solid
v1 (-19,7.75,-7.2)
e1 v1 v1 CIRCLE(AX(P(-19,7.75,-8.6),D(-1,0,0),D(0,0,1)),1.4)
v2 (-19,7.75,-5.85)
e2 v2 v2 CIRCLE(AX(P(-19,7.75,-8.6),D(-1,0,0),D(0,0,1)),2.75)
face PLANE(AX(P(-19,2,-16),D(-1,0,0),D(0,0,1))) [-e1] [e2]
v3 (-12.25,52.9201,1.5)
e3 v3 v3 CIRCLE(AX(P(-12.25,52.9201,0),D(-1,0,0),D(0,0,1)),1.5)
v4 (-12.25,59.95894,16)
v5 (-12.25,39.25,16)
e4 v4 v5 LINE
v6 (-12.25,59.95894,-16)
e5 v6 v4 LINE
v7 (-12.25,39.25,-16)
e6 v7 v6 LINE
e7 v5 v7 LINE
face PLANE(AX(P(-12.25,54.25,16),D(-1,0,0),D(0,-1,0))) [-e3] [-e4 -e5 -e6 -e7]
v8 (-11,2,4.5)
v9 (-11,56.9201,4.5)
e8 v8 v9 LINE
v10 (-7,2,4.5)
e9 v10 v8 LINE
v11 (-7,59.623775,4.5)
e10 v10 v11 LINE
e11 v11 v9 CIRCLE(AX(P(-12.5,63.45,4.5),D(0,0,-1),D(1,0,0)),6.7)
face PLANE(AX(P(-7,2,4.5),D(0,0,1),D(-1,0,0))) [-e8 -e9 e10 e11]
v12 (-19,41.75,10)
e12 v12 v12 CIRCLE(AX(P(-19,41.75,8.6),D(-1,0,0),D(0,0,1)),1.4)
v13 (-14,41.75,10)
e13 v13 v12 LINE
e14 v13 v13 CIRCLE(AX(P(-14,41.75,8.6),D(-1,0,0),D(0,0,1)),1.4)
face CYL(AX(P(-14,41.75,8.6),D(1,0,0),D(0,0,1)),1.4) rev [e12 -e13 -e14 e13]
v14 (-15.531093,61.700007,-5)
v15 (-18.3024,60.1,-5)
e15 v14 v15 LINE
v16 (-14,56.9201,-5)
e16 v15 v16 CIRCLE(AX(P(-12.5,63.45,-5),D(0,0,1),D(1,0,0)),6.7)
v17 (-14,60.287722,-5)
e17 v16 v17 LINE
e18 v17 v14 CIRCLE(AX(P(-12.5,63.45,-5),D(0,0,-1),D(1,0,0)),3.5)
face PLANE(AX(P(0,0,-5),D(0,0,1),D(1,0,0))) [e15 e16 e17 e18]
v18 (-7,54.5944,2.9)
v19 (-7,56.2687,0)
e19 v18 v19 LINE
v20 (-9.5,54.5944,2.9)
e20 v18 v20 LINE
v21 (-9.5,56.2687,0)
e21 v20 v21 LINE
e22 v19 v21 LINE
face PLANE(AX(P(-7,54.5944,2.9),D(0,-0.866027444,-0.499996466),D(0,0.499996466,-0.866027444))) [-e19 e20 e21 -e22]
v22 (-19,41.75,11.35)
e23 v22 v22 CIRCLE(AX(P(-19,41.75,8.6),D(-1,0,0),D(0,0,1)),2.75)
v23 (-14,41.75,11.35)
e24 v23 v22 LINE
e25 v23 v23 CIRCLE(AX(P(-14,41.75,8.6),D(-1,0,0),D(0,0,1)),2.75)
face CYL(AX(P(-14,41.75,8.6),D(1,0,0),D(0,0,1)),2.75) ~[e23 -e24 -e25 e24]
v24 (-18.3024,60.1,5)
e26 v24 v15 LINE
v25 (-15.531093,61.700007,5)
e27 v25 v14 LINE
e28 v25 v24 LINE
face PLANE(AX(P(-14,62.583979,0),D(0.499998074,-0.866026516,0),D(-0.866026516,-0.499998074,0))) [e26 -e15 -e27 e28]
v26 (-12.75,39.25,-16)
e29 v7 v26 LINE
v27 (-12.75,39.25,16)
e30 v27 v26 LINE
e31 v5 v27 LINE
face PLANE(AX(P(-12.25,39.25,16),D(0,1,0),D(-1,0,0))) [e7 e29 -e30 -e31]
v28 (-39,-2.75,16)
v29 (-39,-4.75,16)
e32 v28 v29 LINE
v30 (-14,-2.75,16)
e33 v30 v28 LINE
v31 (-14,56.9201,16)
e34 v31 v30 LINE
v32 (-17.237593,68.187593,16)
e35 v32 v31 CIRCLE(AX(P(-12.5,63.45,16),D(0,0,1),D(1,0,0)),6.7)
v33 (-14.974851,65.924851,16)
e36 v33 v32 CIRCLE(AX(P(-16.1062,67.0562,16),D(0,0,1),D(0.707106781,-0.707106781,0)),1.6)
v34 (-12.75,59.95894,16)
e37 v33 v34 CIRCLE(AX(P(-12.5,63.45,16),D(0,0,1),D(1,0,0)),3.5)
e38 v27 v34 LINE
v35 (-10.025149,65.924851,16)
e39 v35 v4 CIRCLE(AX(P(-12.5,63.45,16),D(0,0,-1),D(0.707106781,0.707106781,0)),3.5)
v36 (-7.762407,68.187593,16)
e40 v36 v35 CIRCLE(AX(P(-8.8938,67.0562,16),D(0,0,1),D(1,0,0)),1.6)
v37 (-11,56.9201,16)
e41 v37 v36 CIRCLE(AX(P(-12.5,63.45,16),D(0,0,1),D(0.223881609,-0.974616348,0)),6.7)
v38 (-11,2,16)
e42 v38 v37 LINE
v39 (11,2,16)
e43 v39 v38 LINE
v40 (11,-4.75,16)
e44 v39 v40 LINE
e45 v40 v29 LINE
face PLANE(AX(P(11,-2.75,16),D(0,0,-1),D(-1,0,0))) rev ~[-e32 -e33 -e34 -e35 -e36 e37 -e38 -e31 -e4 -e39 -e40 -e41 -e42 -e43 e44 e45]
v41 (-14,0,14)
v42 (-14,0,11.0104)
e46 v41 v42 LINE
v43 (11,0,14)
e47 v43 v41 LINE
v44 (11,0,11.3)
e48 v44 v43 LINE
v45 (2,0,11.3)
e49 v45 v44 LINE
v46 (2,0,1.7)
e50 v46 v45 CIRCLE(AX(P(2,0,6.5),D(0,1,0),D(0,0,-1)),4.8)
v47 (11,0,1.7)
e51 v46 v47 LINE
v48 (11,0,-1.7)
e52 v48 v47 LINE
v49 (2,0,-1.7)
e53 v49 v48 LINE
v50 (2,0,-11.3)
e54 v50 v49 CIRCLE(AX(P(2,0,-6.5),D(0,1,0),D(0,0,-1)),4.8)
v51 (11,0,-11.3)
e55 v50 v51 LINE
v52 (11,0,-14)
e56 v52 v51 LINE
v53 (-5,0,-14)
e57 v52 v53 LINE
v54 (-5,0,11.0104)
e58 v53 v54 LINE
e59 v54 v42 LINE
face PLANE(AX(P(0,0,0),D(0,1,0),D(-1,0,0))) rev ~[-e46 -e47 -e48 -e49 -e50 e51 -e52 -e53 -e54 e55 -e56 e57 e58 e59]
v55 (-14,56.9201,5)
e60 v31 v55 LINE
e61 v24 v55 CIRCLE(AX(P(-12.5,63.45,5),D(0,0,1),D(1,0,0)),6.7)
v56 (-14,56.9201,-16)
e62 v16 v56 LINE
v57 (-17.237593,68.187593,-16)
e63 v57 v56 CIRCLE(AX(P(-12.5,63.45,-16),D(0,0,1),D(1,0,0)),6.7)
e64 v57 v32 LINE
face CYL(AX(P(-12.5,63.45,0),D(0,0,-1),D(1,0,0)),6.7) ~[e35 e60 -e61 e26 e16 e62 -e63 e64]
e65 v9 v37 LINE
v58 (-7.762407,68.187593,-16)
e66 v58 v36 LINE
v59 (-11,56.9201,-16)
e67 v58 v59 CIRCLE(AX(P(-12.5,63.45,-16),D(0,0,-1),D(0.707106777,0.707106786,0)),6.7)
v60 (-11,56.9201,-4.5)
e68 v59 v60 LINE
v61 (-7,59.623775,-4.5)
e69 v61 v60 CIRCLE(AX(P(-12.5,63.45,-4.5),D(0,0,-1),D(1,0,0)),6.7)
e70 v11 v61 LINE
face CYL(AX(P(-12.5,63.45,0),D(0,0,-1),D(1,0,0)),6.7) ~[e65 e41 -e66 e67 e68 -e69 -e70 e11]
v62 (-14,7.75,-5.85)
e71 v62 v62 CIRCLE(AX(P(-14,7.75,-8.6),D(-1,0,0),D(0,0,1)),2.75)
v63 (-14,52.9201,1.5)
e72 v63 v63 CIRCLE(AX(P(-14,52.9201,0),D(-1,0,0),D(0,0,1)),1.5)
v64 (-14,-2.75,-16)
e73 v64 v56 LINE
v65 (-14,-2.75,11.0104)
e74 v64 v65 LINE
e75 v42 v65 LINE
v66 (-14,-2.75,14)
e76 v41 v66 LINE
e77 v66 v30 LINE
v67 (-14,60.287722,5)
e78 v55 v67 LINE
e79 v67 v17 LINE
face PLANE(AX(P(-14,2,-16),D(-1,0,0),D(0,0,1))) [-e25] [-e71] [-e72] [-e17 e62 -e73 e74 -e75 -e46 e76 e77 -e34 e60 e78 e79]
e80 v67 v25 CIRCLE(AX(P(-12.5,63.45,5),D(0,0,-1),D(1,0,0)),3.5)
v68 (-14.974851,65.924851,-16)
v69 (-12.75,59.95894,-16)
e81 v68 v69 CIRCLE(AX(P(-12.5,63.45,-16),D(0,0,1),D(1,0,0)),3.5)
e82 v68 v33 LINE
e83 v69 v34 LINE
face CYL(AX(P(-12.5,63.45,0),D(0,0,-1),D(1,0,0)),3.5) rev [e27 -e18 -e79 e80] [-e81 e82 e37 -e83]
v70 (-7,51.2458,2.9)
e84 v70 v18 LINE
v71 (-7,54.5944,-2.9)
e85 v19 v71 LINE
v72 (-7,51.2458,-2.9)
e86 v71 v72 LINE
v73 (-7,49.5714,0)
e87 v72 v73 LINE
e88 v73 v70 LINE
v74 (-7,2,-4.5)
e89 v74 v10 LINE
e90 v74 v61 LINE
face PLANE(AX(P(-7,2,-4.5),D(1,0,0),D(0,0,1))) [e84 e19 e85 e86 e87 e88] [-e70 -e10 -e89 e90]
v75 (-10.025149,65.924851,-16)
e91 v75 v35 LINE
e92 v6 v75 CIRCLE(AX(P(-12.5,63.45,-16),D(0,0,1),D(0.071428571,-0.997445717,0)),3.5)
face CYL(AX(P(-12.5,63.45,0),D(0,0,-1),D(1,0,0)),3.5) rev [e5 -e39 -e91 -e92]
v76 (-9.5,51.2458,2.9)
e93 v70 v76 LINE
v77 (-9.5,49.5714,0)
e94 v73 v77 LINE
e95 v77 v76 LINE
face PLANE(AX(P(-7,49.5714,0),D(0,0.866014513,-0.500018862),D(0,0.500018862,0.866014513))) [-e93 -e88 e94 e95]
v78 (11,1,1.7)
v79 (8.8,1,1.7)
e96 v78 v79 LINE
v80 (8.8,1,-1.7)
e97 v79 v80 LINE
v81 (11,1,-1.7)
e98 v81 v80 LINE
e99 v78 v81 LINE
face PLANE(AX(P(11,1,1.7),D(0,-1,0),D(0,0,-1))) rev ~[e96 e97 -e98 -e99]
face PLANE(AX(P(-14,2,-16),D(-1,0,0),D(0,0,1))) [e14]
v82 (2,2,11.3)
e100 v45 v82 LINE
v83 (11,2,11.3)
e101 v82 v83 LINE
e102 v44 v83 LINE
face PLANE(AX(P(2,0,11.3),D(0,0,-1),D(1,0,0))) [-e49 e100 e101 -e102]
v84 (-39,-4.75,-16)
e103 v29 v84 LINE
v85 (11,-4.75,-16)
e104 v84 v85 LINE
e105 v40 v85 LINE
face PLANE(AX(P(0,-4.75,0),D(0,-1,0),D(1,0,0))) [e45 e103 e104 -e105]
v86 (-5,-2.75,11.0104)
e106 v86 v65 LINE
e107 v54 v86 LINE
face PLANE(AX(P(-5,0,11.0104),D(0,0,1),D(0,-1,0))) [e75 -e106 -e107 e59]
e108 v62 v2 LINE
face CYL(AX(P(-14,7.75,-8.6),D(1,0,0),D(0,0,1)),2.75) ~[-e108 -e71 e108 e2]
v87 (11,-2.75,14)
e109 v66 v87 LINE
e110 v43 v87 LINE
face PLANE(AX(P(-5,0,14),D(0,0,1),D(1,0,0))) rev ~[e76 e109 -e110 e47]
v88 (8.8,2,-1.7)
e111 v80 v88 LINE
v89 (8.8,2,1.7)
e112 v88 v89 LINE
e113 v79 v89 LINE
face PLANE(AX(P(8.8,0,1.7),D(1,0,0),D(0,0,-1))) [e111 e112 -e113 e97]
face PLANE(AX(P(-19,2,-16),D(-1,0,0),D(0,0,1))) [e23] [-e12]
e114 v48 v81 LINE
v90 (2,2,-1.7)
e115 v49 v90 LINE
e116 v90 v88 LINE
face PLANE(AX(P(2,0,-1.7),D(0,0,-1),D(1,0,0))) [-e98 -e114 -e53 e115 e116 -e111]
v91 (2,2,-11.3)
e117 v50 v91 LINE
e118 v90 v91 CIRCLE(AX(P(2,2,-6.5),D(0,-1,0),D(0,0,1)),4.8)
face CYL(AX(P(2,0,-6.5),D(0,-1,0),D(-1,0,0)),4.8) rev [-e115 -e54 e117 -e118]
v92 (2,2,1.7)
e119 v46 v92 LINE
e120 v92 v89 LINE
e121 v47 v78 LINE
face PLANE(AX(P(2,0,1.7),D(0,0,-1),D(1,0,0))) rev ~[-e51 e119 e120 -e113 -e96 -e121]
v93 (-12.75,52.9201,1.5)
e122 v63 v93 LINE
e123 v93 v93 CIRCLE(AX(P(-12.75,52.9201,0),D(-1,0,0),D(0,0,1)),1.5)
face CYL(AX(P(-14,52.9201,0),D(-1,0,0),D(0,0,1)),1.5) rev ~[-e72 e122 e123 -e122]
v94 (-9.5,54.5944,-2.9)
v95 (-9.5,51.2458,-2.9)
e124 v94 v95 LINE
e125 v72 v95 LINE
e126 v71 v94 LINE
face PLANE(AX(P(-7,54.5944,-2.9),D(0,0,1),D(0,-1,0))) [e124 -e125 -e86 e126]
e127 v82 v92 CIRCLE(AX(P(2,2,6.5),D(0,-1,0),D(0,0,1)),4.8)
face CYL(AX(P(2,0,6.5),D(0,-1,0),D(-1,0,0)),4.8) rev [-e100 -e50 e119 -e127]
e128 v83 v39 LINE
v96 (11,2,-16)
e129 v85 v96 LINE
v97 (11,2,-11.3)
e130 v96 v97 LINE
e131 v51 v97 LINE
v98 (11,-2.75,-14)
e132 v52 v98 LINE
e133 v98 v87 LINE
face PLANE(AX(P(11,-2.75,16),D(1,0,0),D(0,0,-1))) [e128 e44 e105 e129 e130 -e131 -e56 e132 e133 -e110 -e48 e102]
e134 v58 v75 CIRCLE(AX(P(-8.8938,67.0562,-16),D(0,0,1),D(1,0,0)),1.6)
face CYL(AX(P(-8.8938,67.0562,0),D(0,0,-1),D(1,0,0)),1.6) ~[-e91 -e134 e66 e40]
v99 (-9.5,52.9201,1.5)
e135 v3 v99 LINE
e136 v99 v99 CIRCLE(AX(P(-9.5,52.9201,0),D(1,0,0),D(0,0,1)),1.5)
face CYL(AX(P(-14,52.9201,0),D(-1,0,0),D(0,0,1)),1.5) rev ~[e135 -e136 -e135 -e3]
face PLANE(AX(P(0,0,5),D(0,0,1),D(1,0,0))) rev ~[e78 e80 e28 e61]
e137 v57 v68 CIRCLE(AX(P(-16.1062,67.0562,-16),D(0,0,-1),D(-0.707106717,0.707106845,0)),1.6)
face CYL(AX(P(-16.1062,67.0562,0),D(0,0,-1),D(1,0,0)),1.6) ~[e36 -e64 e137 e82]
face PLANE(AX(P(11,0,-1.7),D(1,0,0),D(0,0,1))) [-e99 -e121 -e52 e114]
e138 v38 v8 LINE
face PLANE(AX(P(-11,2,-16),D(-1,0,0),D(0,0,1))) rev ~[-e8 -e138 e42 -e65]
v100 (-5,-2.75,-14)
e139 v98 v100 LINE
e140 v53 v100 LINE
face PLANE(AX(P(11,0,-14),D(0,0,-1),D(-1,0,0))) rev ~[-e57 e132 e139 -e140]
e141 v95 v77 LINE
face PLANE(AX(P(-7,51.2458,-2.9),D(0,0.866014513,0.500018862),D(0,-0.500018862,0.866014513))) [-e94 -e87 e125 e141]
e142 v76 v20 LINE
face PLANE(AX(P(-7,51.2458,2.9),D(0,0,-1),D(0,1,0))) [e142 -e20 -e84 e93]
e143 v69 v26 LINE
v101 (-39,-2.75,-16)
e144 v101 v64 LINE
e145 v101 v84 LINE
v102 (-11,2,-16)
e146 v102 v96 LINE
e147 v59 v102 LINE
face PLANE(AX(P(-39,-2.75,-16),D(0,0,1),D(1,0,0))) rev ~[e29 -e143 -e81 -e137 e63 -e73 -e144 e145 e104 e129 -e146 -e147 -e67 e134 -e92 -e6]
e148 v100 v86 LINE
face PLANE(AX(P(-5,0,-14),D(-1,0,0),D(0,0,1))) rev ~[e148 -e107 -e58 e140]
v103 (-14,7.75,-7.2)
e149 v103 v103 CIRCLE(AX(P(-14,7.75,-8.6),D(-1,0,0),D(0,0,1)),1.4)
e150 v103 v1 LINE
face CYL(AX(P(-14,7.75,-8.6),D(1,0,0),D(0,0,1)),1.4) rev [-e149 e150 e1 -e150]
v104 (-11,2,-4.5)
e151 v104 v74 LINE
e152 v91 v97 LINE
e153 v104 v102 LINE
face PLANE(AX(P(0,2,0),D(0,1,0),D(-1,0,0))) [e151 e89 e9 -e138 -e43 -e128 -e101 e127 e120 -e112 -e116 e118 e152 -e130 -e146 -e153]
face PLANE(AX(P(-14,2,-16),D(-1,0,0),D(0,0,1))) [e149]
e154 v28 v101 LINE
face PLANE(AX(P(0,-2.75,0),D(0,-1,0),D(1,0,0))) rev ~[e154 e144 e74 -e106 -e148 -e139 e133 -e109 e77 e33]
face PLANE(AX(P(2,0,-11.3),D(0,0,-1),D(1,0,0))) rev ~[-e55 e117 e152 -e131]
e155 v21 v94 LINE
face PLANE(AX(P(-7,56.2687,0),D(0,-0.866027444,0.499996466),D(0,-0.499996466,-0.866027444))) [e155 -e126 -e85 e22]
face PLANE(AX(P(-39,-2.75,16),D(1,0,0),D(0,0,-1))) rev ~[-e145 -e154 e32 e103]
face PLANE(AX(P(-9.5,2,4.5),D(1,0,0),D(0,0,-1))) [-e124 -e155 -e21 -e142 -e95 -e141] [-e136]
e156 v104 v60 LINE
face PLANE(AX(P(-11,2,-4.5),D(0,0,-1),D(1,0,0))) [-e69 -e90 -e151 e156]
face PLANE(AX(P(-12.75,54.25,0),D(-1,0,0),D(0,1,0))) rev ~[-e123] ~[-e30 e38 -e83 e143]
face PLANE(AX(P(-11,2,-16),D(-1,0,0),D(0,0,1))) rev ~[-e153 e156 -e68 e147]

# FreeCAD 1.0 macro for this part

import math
import FreeCAD as App
import Part
import Sketcher
Q = App.Units.Quantity

doc = App.newDocument("Part")
body = doc.addObject("PartDesign::Body", "Body")

sketch1 = body.newObject("Sketcher::SketchObject", "Sketch")
sketch1.AttachmentSupport = (doc.getObject("XZ_Plane"), [""])
sketch1.MapMode = "FlatFace"
sketch1.addGeometry([
    Part.LineSegment(App.Vector(11, -16, 0), App.Vector(-11, -16, 0)),
    Part.LineSegment(App.Vector(-11, -16, 0), App.Vector(-11, 16, 0)),
    Part.LineSegment(App.Vector(-11, 16, 0), App.Vector(11, 16, 0)),
    Part.LineSegment(App.Vector(11, 16, 0), App.Vector(11, 11.3, 0)),
    Part.LineSegment(App.Vector(11, 11.3, 0), App.Vector(2, 11.3, 0)),
    Part.ArcOfCircle(Part.Circle(App.Vector(2, 6.5, 0), App.Vector(0, 0, 1), 4.8), math.radians(90), math.radians(270)),
    Part.LineSegment(App.Vector(2, 1.7, 0), App.Vector(11, 1.7, 0)),
    Part.LineSegment(App.Vector(11, 1.7, 0), App.Vector(11, -1.7, 0)),
    Part.LineSegment(App.Vector(11, -1.7, 0), App.Vector(2, -1.7, 0)),
    Part.ArcOfCircle(Part.Circle(App.Vector(2, -6.5, 0), App.Vector(0, 0, 1), 4.8), math.radians(90), math.radians(270)),
    Part.LineSegment(App.Vector(2, -11.3, 0), App.Vector(11, -11.3, 0)),
    Part.LineSegment(App.Vector(11, -11.3, 0), App.Vector(11, -16, 0)),
], False)
sketch1.addConstraint([
    Sketcher.Constraint("Coincident", 0, 2, 1, 1),
    Sketcher.Constraint("Coincident", 1, 2, 2, 1),
    Sketcher.Constraint("Coincident", 2, 2, 3, 1),
    Sketcher.Constraint("Coincident", 3, 2, 4, 1),
    Sketcher.Constraint("Tangent", 4, 2, 5, 1),
    Sketcher.Constraint("Tangent", 5, 2, 6, 1),
    Sketcher.Constraint("Coincident", 6, 2, 7, 1),
    Sketcher.Constraint("Coincident", 7, 2, 8, 1),
    Sketcher.Constraint("Tangent", 8, 2, 9, 1),
    Sketcher.Constraint("Tangent", 9, 2, 10, 1),
    Sketcher.Constraint("Coincident", 10, 2, 11, 1),
    Sketcher.Constraint("Coincident", 11, 2, 0, 1),
    Sketcher.Constraint("Horizontal", 0),
    Sketcher.Constraint("Vertical", 1),
    Sketcher.Constraint("Horizontal", 2),
    Sketcher.Constraint("Vertical", 3),
    Sketcher.Constraint("Horizontal", 4),
    Sketcher.Constraint("Horizontal", 6),
    Sketcher.Constraint("Vertical", 7),
    Sketcher.Constraint("Horizontal", 8),
    Sketcher.Constraint("Horizontal", 10),
    Sketcher.Constraint("Vertical", 11),
    Sketcher.Constraint("Equal", 5, 9),
    Sketcher.Constraint("Symmetric", 0, 2, 2, 2, -1, 1),
    Sketcher.Constraint("Symmetric", 5, 3, 9, 3, -1),
    Sketcher.Constraint("Vertical", 3, 2, 6, 2),
    Sketcher.Constraint("Vertical", 7, 2, 10, 2),
    Sketcher.Constraint("Radius", 5, Q("4.8 mm")),
    Sketcher.Constraint("DistanceX", 0, 2, 0, 1, Q("22 mm")),
    Sketcher.Constraint("DistanceY", 1, 1, 1, 2, Q("32 mm")),
    Sketcher.Constraint("DistanceY", 9, 3, 5, 3, Q("13 mm")),
    Sketcher.Constraint("DistanceX", 0, 2, 9, 3, Q("13 mm")),
])
pad1 = body.newObject("PartDesign::Pad", "Pad")
pad1.Profile = sketch1
pad1.Length = 2
pad1.Reversed = True

sketch2 = body.newObject("Sketcher::SketchObject", "Sketch001")
sketch2.AttachmentSupport = (doc.getObject("XZ_Plane"), [""])
sketch2.MapMode = "FlatFace"
sketch2.addGeometry([
    Part.LineSegment(App.Vector(11, 16, 0), App.Vector(-11, 16, 0)),
    Part.LineSegment(App.Vector(-11, 16, 0), App.Vector(-11, -16, 0)),
    Part.LineSegment(App.Vector(-11, -16, 0), App.Vector(11, -16, 0)),
    Part.LineSegment(App.Vector(11, -16, 0), App.Vector(11, -14, 0)),
    Part.LineSegment(App.Vector(11, -14, 0), App.Vector(-5, -14, 0)),
    Part.LineSegment(App.Vector(-5, -14, 0), App.Vector(-5, 14, 0)),
    Part.LineSegment(App.Vector(-5, 14, 0), App.Vector(11, 14, 0)),
    Part.LineSegment(App.Vector(11, 14, 0), App.Vector(11, 16, 0)),
], False)
sketch2.addConstraint([
    Sketcher.Constraint("Coincident", 0, 2, 1, 1),
    Sketcher.Constraint("Coincident", 1, 2, 2, 1),
    Sketcher.Constraint("Coincident", 2, 2, 3, 1),
    Sketcher.Constraint("Coincident", 3, 2, 4, 1),
    Sketcher.Constraint("Coincident", 4, 2, 5, 1),
    Sketcher.Constraint("Coincident", 5, 2, 6, 1),
    Sketcher.Constraint("Coincident", 6, 2, 7, 1),
    Sketcher.Constraint("Coincident", 7, 2, 0, 1),
    Sketcher.Constraint("Horizontal", 0),
    Sketcher.Constraint("Vertical", 1),
    Sketcher.Constraint("Horizontal", 2),
    Sketcher.Constraint("Vertical", 3),
    Sketcher.Constraint("Horizontal", 4),
    Sketcher.Constraint("Vertical", 5),
    Sketcher.Constraint("Horizontal", 6),
    Sketcher.Constraint("Vertical", 7),
    Sketcher.Constraint("Symmetric", 0, 2, 2, 2, -1, 1),
    Sketcher.Constraint("Symmetric", 3, 2, 6, 2, -1),
    Sketcher.Constraint("DistanceX", 4, 2, 4, 1, Q("16 mm")),
    Sketcher.Constraint("DistanceY", 3, 1, 3, 2, Q("2 mm")),
    Sketcher.Constraint("DistanceY", 5, 1, 5, 2, Q("28 mm")),
    Sketcher.Constraint("DistanceX", 0, 2, 0, 1, Q("22 mm")),
])
pad2 = body.newObject("PartDesign::Pad", "Pad001")
pad2.Profile = sketch2
pad2.Length = 2.75

sketch3 = body.newObject("Sketcher::SketchObject", "Sketch002")
sketch3.AttachmentSupport = (doc.getObject("YZ_Plane"), [""])
sketch3.MapMode = "FlatFace"
sketch3.AttachmentOffset = App.Placement(App.Vector(0, 0, -11), App.Rotation())
sketch3.addGeometry([
    Part.LineSegment(App.Vector(52, -16, 0), App.Vector(-3, -16, 0)),
    Part.LineSegment(App.Vector(-3, -16, 0), App.Vector(-3, 16, 0)),
    Part.LineSegment(App.Vector(-3, 16, 0), App.Vector(52, 16, 0)),
    Part.LineSegment(App.Vector(52, 16, 0), App.Vector(52, -16, 0)),
], False)
sketch3.addConstraint([
    Sketcher.Constraint("Coincident", 0, 2, 1, 1),
    Sketcher.Constraint("Coincident", 1, 2, 2, 1),
    Sketcher.Constraint("Coincident", 2, 2, 3, 1),
    Sketcher.Constraint("Coincident", 3, 2, 0, 1),
    Sketcher.Constraint("Horizontal", 0),
    Sketcher.Constraint("Vertical", 1),
    Sketcher.Constraint("Horizontal", 2),
    Sketcher.Constraint("Vertical", 3),
    Sketcher.Constraint("DistanceX", 0, 2, 0, 1, Q("54.5 mm")),
    Sketcher.Constraint("DistanceY", 1, 1, 1, 2, Q("32 mm")),
    Sketcher.Constraint("DistanceY", 0, 2, -1, 1, Q("16 mm")),
    Sketcher.Constraint("DistanceX", 0, 2, -1, 1, Q("2.75 mm")),
])
pad3 = body.newObject("PartDesign::Pad", "Pad002")
pad3.Profile = sketch3
pad3.Length = 3
pad3.Reversed = True

sketch4 = body.newObject("Sketcher::SketchObject", "Sketch003")
sketch4.AttachmentSupport = (doc.getObject("XZ_Plane"), [""])
sketch4.MapMode = "FlatFace"
sketch4.AttachmentOffset = App.Placement(App.Vector(0, 0, 2.75), App.Rotation())
sketch4.addGeometry([
    Part.LineSegment(App.Vector(11, -16, 0), App.Vector(11, 16, 0)),
    Part.LineSegment(App.Vector(11, 16, 0), App.Vector(-39, 16, 0)),
    Part.LineSegment(App.Vector(-39, 16, 0), App.Vector(-39, -16, 0)),
    Part.LineSegment(App.Vector(-39, -16, 0), App.Vector(11, -16, 0)),
], False)
sketch4.addConstraint([
    Sketcher.Constraint("Coincident", 0, 2, 1, 1),
    Sketcher.Constraint("Coincident", 1, 2, 2, 1),
    Sketcher.Constraint("Coincident", 2, 2, 3, 1),
    Sketcher.Constraint("Coincident", 3, 2, 0, 1),
    Sketcher.Constraint("Vertical", 0),
    Sketcher.Constraint("Horizontal", 1),
    Sketcher.Constraint("Vertical", 2),
    Sketcher.Constraint("Horizontal", 3),
    Sketcher.Constraint("DistanceX", 1, 2, 1, 1, Q("50 mm")),
    Sketcher.Constraint("DistanceY", 0, 1, 0, 2, Q("32 mm")),
    Sketcher.Constraint("DistanceX", -1, 1, 0, 2, Q("11 mm")),
    Sketcher.Constraint("DistanceY", -1, 1, 0, 2, Q("16 mm")),
])
pad4 = body.newObject("PartDesign::Pad", "Pad003")
pad4.Profile = sketch4
pad4.Length = 2

sketch5 = body.newObject("Sketcher::SketchObject", "Sketch004")
sketch5.AttachmentSupport = (doc.getObject("YZ_Plane"), [""])
sketch5.MapMode = "FlatFace"
sketch5.AttachmentOffset = App.Placement(App.Vector(0, 0, -5), App.Rotation())
sketch5.addGeometry([
    Part.LineSegment(App.Vector(0, 11, 0), App.Vector(0, 14, 0)),
    Part.LineSegment(App.Vector(0, 14, 0), App.Vector(-2.8, 14, 0)),
    Part.LineSegment(App.Vector(-2.8, 14, 0), App.Vector(-2.8, 11, 0)),
    Part.LineSegment(App.Vector(-2.8, 11, 0), App.Vector(0, 11, 0)),
], False)
sketch5.addConstraint([
    Sketcher.Constraint("Coincident", 0, 2, 1, 1),
    Sketcher.Constraint("Coincident", 1, 2, 2, 1),
    Sketcher.Constraint("Coincident", 2, 2, 3, 1),
    Sketcher.Constraint("Coincident", 3, 2, 0, 1),
    Sketcher.Constraint("Vertical", 0),
    Sketcher.Constraint("Horizontal", 1),
    Sketcher.Constraint("Vertical", 2),
    Sketcher.Constraint("Horizontal", 3),
    Sketcher.Constraint("PointOnObject", 0, 2, -2),
    Sketcher.Constraint("DistanceY", -1, 1, 0, 2, Q("14 mm")),
    Sketcher.Constraint("DistanceX", 1, 2, 1, 1, Q("2.75 mm")),
    Sketcher.Constraint("DistanceY", 0, 1, 0, 2, Q("2.9896 mm")),
])
pocket1 = body.newObject("PartDesign::Pocket", "Pocket")
pocket1.Profile = sketch5
pocket1.Length = 9

sketch6 = body.newObject("Sketcher::SketchObject", "Sketch005")
sketch6.AttachmentSupport = (doc.getObject("YZ_Plane"), [""])
sketch6.MapMode = "FlatFace"
sketch6.AttachmentOffset = App.Placement(App.Vector(0, 0, 11), App.Rotation())
sketch6.addGeometry([
    Part.LineSegment(App.Vector(2, 1.7, 0), App.Vector(1, 1.7, 0)),
    Part.LineSegment(App.Vector(1, 1.7, 0), App.Vector(1, -1.7, 0)),
    Part.LineSegment(App.Vector(1, -1.7, 0), App.Vector(2, -1.7, 0)),
    Part.LineSegment(App.Vector(2, -1.7, 0), App.Vector(2, 1.7, 0)),
], False)
sketch6.addConstraint([
    Sketcher.Constraint("Coincident", 0, 2, 1, 1),
    Sketcher.Constraint("Coincident", 1, 2, 2, 1),
    Sketcher.Constraint("Coincident", 2, 2, 3, 1),
    Sketcher.Constraint("Coincident", 3, 2, 0, 1),
    Sketcher.Constraint("Horizontal", 0),
    Sketcher.Constraint("Vertical", 1),
    Sketcher.Constraint("Horizontal", 2),
    Sketcher.Constraint("Vertical", 3),
    Sketcher.Constraint("DistanceX", 0, 2, 0, 1, Q("1 mm")),
    Sketcher.Constraint("DistanceY", 1, 2, 1, 1, Q("3.4 mm")),
    Sketcher.Constraint("DistanceX", -1, 1, 0, 2, Q("1 mm")),
    Sketcher.Constraint("DistanceY", -1, 1, 0, 2, Q("1.7 mm")),
])
pocket2 = body.newObject("PartDesign::Pocket", "Pocket001")
pocket2.Profile = sketch6
pocket2.Length = 2.2

sketch7 = body.newObject("Sketcher::SketchObject", "Sketch006")
sketch7.AttachmentSupport = (doc.getObject("YZ_Plane"), [""])
sketch7.MapMode = "FlatFace"
sketch7.AttachmentOffset = App.Placement(App.Vector(0, 0, -14), App.Rotation())
sketch7.addGeometry([
    Part.Circle(App.Vector(41.8, 8.6, 0), App.Vector(0, 0, 1), 2.8),
    Part.Circle(App.Vector(41.8, 8.6, 0), App.Vector(0, 0, 1), 1.4),
    Part.Circle(App.Vector(7.8, -8.6, 0), App.Vector(0, 0, 1), 2.8),
    Part.Circle(App.Vector(7.8, -8.6, 0), App.Vector(0, 0, 1), 1.4),
], False)
sketch7.addConstraint([
    Sketcher.Constraint("Coincident", 1, 3, 0, 3),
    Sketcher.Constraint("Coincident", 3, 3, 2, 3),
    Sketcher.Constraint("Equal", 0, 2),
    Sketcher.Constraint("Equal", 1, 3),
    Sketcher.Constraint("Diameter", 0, Q("5.5 mm")),
    Sketcher.Constraint("Diameter", 1, Q("2.8 mm")),
    Sketcher.Constraint("DistanceX", 2, 3, 0, 3, Q("34 mm")),
    Sketcher.Constraint("DistanceY", -1, 1, 0, 3, Q("8.6 mm")),
    Sketcher.Constraint("DistanceY", 2, 3, -1, 1, Q("8.6 mm")),
    Sketcher.Constraint("DistanceX", -1, 1, 0, 3, Q("41.75 mm")),
])
pad5 = body.newObject("PartDesign::Pad", "Pad004")
pad5.Profile = sketch7
pad5.Length = 5
pad5.Reversed = True

sketch8 = body.newObject("Sketcher::SketchObject", "Sketch007")
sketch8.AttachmentSupport = (doc.getObject("XY_Plane"), [""])
sketch8.MapMode = "FlatFace"
sketch8.addGeometry([
    Part.LineSegment(App.Vector(-11, 51.8, 0), App.Vector(-11, 56.9, 0)),
    Part.ArcOfCircle(Part.Circle(App.Vector(-12.5, 63.5, 0), App.Vector(0, 0, 1), 6.7), math.radians(-77), math.radians(45)),
    Part.ArcOfCircle(Part.Circle(App.Vector(-8.9, 67.1, 0), App.Vector(0, 0, 1), 1.6), math.radians(45), math.radians(225)),
    Part.ArcOfCircle(Part.Circle(App.Vector(-12.5, 63.5, 0), App.Vector(0, 0, 1), 3.5), math.radians(-86), math.radians(45)),
    Part.LineSegment(App.Vector(-12.2, 60, 0), App.Vector(-12.2, 54.2, 0)),
    Part.LineSegment(App.Vector(-12.2, 54.2, 0), App.Vector(-12.8, 54.2, 0)),
    Part.LineSegment(App.Vector(-12.8, 54.2, 0), App.Vector(-12.8, 60, 0)),
    Part.ArcOfCircle(Part.Circle(App.Vector(-12.5, 63.5, 0), App.Vector(0, 0, 1), 3.5), math.radians(135), math.radians(266)),
    Part.ArcOfCircle(Part.Circle(App.Vector(-16.1, 67.1, 0), App.Vector(0, 0, 1), 1.6), math.radians(-45), math.radians(135)),
    Part.ArcOfCircle(Part.Circle(App.Vector(-12.5, 63.5, 0), App.Vector(0, 0, 1), 6.7), math.radians(135), math.radians(257)),
    Part.LineSegment(App.Vector(-14, 56.9, 0), App.Vector(-14, 51.8, 0)),
    Part.LineSegment(App.Vector(-14, 51.8, 0), App.Vector(-11, 51.8, 0)),
], False)
sketch8.addConstraint([
    Sketcher.Constraint("Coincident", 0, 2, 1, 1),
    Sketcher.Constraint("Tangent", 1, 2, 2, 1),
    Sketcher.Constraint("Tangent", 2, 2, 3, 2),
    Sketcher.Constraint("Coincident", 3, 1, 4, 1),
    Sketcher.Constraint("Coincident", 4, 2, 5, 1),
    Sketcher.Constraint("Coincident", 5, 2, 6, 1),
    Sketcher.Constraint("Coincident", 6, 2, 7, 2),
    Sketcher.Constraint("Tangent", 7, 1, 8, 1),
    Sketcher.Constraint("Tangent", 8, 2, 9, 1),
    Sketcher.Constraint("Coincident", 9, 2, 10, 1),
    Sketcher.Constraint("Coincident", 10, 2, 11, 1),
    Sketcher.Constraint("Coincident", 11, 2, 0, 1),
    Sketcher.Constraint("Vertical", 0),
    Sketcher.Constraint("Vertical", 4),
    Sketcher.Constraint("Horizontal", 5),
    Sketcher.Constraint("Vertical", 6),
    Sketcher.Constraint("Vertical", 10),
    Sketcher.Constraint("Horizontal", 11),
    Sketcher.Constraint("Coincident", 3, 3, 1, 3),
    Sketcher.Constraint("Coincident", 7, 3, 1, 3),
    Sketcher.Constraint("Coincident", 9, 3, 1, 3),
    Sketcher.Constraint("Equal", 3, 7),
    Sketcher.Constraint("Equal", 2, 8),
    Sketcher.Constraint("Horizontal", 2, 3, 8, 3),
    Sketcher.Constraint("Horizontal", 3, 1, 6, 2),
    Sketcher.Constraint("Horizontal", 0, 2, 9, 2),
    Sketcher.Constraint("Radius", 1, Q("6.7 mm")),
    Sketcher.Constraint("Radius", 3, Q("3.5 mm")),
    Sketcher.Constraint("DistanceX", 5, 2, 5, 1, Q("0.5 mm")),
    Sketcher.Constraint("DistanceX", 11, 1, 11, 2, Q("3 mm")),
    Sketcher.Constraint("DistanceX", 0, 2, -1, 1, Q("11 mm")),
    Sketcher.Constraint("DistanceY", 0, 1, 0, 2, Q("5.17 mm")),
    Sketcher.Constraint("DistanceY", 4, 2, 1, 3, Q("9.2 mm")),
    Sketcher.Constraint("DistanceY", -1, 1, 1, 3, Q("63.45 mm")),
    Sketcher.Constraint("DistanceY", 0, 2, 2, 3, Q("10.136 mm")),
])
pad6 = body.newObject("PartDesign::Pad", "Pad005")
pad6.Profile = sketch8
pad6.Length = 32
pad6.Midplane = True

sketch9 = body.newObject("Sketcher::SketchObject", "Sketch008")
sketch9.AttachmentSupport = (doc.getObject("XY_Plane"), [""])
sketch9.MapMode = "FlatFace"
sketch9.AttachmentOffset = App.Placement(App.Vector(0, 0, 16), App.Rotation())
sketch9.addGeometry([
    Part.LineSegment(App.Vector(-12.2, 54.2, 0), App.Vector(-12.8, 54.2, 0)),
    Part.LineSegment(App.Vector(-12.8, 54.2, 0), App.Vector(-12.8, 39.2, 0)),
    Part.LineSegment(App.Vector(-12.8, 39.2, 0), App.Vector(-12.2, 39.2, 0)),
    Part.LineSegment(App.Vector(-12.2, 39.2, 0), App.Vector(-12.2, 54.2, 0)),
], False)
sketch9.addConstraint([
    Sketcher.Constraint("Coincident", 0, 2, 1, 1),
    Sketcher.Constraint("Coincident", 1, 2, 2, 1),
    Sketcher.Constraint("Coincident", 2, 2, 3, 1),
    Sketcher.Constraint("Coincident", 3, 2, 0, 1),
    Sketcher.Constraint("Horizontal", 0),
    Sketcher.Constraint("Vertical", 1),
    Sketcher.Constraint("Horizontal", 2),
    Sketcher.Constraint("Vertical", 3),
    Sketcher.Constraint("DistanceY", 1, 2, 1, 1, Q("15 mm")),
    Sketcher.Constraint("DistanceX", 0, 2, 0, 1, Q("0.5 mm")),
    Sketcher.Constraint("DistanceX", 0, 2, -1, 1, Q("12.75 mm")),
    Sketcher.Constraint("DistanceY", -1, 1, 0, 2, Q("54.25 mm")),
])
pocket3 = body.newObject("PartDesign::Pocket", "Pocket002")
pocket3.Profile = sketch9
pocket3.Type = "ThroughAll"

sketch10 = body.newObject("Sketcher::SketchObject", "Sketch009")
sketch10.AttachmentSupport = (doc.getObject("XY_Plane"), [""])
sketch10.MapMode = "FlatFace"
sketch10.addGeometry([
    Part.LineSegment(App.Vector(-14, 56.9, 0), App.Vector(-14, 62.6, 0)),
    Part.LineSegment(App.Vector(-14, 62.6, 0), App.Vector(-18.3, 60.1, 0)),
    Part.ArcOfCircle(Part.Circle(App.Vector(-12.5, 63.5, 0), App.Vector(0, 0, 1), 6.7), math.radians(-150), math.radians(-103)),
], False)
sketch10.addConstraint([
    Sketcher.Constraint("Coincident", 0, 2, 1, 1),
    Sketcher.Constraint("Coincident", 1, 2, 2, 1),
    Sketcher.Constraint("Coincident", 2, 2, 0, 1),
    Sketcher.Constraint("Vertical", 0),
    Sketcher.Constraint("Radius", 2, Q("6.7 mm")),
    Sketcher.Constraint("Angle", 1, Q("-150.0001 deg")),
    Sketcher.Constraint("DistanceX", 0, 2, -1, 1, Q("14 mm")),
    Sketcher.Constraint("DistanceX", 2, 3, -1, 1, Q("12.5 mm")),
    Sketcher.Constraint("DistanceY", -1, 1, 1, 2, Q("60.1 mm")),
    Sketcher.Constraint("DistanceY", -1, 1, 2, 3, Q("63.45 mm")),
])
pocket4 = body.newObject("PartDesign::Pocket", "Pocket003")
pocket4.Profile = sketch10
pocket4.Length = 10
pocket4.Midplane = True

sketch11 = body.newObject("Sketcher::SketchObject", "Sketch010")
sketch11.AttachmentSupport = (doc.getObject("XZ_Plane"), [""])
sketch11.MapMode = "FlatFace"
sketch11.AttachmentOffset = App.Placement(App.Vector(0, 0, -2), App.Rotation())
sketch11.addGeometry([
    Part.LineSegment(App.Vector(-7, -4.5, 0), App.Vector(-11, -4.5, 0)),
    Part.LineSegment(App.Vector(-11, -4.5, 0), App.Vector(-11, 4.5, 0)),
    Part.LineSegment(App.Vector(-11, 4.5, 0), App.Vector(-7, 4.5, 0)),
    Part.LineSegment(App.Vector(-7, 4.5, 0), App.Vector(-7, -4.5, 0)),
], False)
sketch11.addConstraint([
    Sketcher.Constraint("Coincident", 0, 2, 1, 1),
    Sketcher.Constraint("Coincident", 1, 2, 2, 1),
    Sketcher.Constraint("Coincident", 2, 2, 3, 1),
    Sketcher.Constraint("Coincident", 3, 2, 0, 1),
    Sketcher.Constraint("Horizontal", 0),
    Sketcher.Constraint("Vertical", 1),
    Sketcher.Constraint("Horizontal", 2),
    Sketcher.Constraint("Vertical", 3),
    Sketcher.Constraint("DistanceX", 0, 2, 0, 1, Q("4 mm")),
    Sketcher.Constraint("DistanceY", 1, 1, 1, 2, Q("9 mm")),
    Sketcher.Constraint("DistanceX", 0, 2, -1, 1, Q("11 mm")),
    Sketcher.Constraint("DistanceY", 0, 2, -1, 1, Q("4.5 mm")),
])
pad7 = body.newObject("PartDesign::Pad", "Pad006")
pad7.Profile = sketch11
pad7.Type = "UpToFirst"
pad7.Reversed = True

sketch12 = body.newObject("Sketcher::SketchObject", "Sketch011")
sketch12.AttachmentSupport = (doc.getObject("YZ_Plane"), [""])
sketch12.MapMode = "FlatFace"
sketch12.AttachmentOffset = App.Placement(App.Vector(0, 0, -14), App.Rotation())
sketch12.addGeometry(Part.Circle(App.Vector(52.9, 0, 0), App.Vector(0, 0, 1), 1.5), False)
sketch12.addConstraint([
    Sketcher.Constraint("PointOnObject", 0, 3, -1),
    Sketcher.Constraint("Diameter", 0, Q("3 mm")),
    Sketcher.Constraint("DistanceX", -1, 1, 0, 3, Q("52.92 mm")),
])
pocket5 = body.newObject("PartDesign::Pocket", "Pocket004")
pocket5.Profile = sketch12
pocket5.Type = "ThroughAll"
pocket5.Reversed = True

sketch13 = body.newObject("Sketcher::SketchObject", "Sketch012")
sketch13.AttachmentSupport = (doc.getObject("YZ_Plane"), [""])
sketch13.MapMode = "FlatFace"
sketch13.AttachmentOffset = App.Placement(App.Vector(0, 0, -7), App.Rotation())
sketch13.addGeometry([
    Part.LineSegment(App.Vector(49.6, 0, 0), App.Vector(51.2, -2.9, 0)),
    Part.LineSegment(App.Vector(51.2, -2.9, 0), App.Vector(54.6, -2.9, 0)),
    Part.LineSegment(App.Vector(54.6, -2.9, 0), App.Vector(56.3, 0, 0)),
    Part.LineSegment(App.Vector(56.3, 0, 0), App.Vector(54.6, 2.9, 0)),
    Part.LineSegment(App.Vector(54.6, 2.9, 0), App.Vector(51.2, 2.9, 0)),
    Part.LineSegment(App.Vector(51.2, 2.9, 0), App.Vector(49.6, 0, 0)),
    Part.Circle(App.Vector(52.9, 0, 0), App.Vector(0, 0, 1), 1.5),
], False)
sketch13.addConstraint([
    Sketcher.Constraint("Coincident", 0, 2, 1, 1),
    Sketcher.Constraint("Coincident", 1, 2, 2, 1),
    Sketcher.Constraint("Coincident", 2, 2, 3, 1),
    Sketcher.Constraint("Coincident", 3, 2, 4, 1),
    Sketcher.Constraint("Coincident", 4, 2, 5, 1),
    Sketcher.Constraint("Coincident", 5, 2, 0, 1),
    Sketcher.Constraint("Horizontal", 1),
    Sketcher.Constraint("Horizontal", 4),
    Sketcher.Constraint("Symmetric", 1, 2, 3, 2, -1),
    Sketcher.Constraint("PointOnObject", 6, 3, -1),
    Sketcher.Constraint("PointOnObject", 2, 2, -1),
    Sketcher.Constraint("PointOnObject", 5, 2, -1),
    Sketcher.Constraint("Parallel", 0, 3),
    Sketcher.Constraint("Parallel", 2, 5),
    Sketcher.Constraint("Diameter", 6, Q("3 mm")),
    Sketcher.Constraint("DistanceY", 1, 2, 3, 2, Q("5.8 mm")),
    Sketcher.Constraint("Angle", 2, Q("60.0002 deg")),
    Sketcher.Constraint("DistanceX", -1, 1, 6, 3, Q("52.92 mm")),
    Sketcher.Constraint("DistanceX", 1, 1, 1, 2, Q("3.3486 mm")),
    Sketcher.Constraint("DistanceX", -1, 1, 0, 2, Q("51.2458 mm")),
])
pocket6 = body.newObject("PartDesign::Pocket", "Pocket005")
pocket6.Profile = sketch13
pocket6.Length = 2.5

doc.recompute()
